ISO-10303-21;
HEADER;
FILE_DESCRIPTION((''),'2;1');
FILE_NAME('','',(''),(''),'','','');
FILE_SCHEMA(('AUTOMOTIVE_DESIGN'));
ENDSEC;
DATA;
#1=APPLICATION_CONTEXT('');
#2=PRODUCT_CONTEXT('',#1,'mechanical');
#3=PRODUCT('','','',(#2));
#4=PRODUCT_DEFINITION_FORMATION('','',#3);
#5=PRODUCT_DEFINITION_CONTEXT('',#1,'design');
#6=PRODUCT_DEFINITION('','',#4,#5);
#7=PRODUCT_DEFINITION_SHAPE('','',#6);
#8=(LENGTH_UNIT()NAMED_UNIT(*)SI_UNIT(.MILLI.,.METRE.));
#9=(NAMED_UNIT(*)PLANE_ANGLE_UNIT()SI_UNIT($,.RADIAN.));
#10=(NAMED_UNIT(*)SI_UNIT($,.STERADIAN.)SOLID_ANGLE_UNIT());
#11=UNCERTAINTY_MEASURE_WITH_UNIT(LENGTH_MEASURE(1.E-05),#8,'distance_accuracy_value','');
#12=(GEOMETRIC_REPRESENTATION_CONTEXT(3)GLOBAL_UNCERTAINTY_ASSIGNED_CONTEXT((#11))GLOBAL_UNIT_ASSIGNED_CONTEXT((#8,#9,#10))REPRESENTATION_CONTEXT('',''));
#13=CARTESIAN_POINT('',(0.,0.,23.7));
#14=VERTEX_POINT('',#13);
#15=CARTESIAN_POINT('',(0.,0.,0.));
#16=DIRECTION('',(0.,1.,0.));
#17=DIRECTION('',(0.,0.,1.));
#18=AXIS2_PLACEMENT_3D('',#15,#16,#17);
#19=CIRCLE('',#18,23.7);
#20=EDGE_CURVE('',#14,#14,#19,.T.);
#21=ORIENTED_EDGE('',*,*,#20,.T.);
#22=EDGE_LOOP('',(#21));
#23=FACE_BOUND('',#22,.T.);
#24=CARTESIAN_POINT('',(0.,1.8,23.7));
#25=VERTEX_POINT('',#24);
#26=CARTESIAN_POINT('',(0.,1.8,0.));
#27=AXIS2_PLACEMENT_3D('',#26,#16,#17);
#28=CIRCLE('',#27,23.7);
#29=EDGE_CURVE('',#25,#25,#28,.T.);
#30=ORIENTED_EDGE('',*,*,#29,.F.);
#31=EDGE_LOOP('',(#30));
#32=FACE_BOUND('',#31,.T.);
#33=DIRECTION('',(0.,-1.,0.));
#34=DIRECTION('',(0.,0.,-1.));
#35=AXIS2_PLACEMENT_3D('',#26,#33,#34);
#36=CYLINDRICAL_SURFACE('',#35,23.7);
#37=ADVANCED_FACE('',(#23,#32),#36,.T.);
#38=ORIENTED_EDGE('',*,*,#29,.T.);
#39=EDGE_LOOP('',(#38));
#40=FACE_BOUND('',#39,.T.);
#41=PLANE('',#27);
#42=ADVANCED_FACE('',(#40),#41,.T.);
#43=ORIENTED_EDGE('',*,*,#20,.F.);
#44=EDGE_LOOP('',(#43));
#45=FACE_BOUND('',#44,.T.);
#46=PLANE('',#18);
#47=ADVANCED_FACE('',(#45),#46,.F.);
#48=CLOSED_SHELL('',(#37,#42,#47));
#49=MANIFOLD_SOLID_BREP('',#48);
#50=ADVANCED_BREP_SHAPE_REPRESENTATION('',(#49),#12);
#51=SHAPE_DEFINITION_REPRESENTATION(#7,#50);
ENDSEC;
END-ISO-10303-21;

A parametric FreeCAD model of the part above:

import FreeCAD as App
import Part
import Sketcher

doc = App.newDocument("Part")
body = doc.addObject("PartDesign::Body", "Body")

sketch1 = body.newObject("Sketcher::SketchObject", "Sketch")
sketch1.AttachmentSupport = (doc.getObject("XZ_Plane"), [""])
sketch1.MapMode = "FlatFace"
sketch1.addGeometry(Part.Circle(App.Vector(0, 0, 0), App.Vector(0, 0, 1), 24), False)
sketch1.addConstraint([
    Sketcher.Constraint("Coincident", 0, 3, -1, 1),
    Sketcher.Constraint("Diameter", 0, 47.4),
])
pad1 = body.newObject("PartDesign::Pad", "Pad")
pad1.Profile = sketch1
pad1.Length = 1.8
pad1.Reversed = True

doc.recompute()
